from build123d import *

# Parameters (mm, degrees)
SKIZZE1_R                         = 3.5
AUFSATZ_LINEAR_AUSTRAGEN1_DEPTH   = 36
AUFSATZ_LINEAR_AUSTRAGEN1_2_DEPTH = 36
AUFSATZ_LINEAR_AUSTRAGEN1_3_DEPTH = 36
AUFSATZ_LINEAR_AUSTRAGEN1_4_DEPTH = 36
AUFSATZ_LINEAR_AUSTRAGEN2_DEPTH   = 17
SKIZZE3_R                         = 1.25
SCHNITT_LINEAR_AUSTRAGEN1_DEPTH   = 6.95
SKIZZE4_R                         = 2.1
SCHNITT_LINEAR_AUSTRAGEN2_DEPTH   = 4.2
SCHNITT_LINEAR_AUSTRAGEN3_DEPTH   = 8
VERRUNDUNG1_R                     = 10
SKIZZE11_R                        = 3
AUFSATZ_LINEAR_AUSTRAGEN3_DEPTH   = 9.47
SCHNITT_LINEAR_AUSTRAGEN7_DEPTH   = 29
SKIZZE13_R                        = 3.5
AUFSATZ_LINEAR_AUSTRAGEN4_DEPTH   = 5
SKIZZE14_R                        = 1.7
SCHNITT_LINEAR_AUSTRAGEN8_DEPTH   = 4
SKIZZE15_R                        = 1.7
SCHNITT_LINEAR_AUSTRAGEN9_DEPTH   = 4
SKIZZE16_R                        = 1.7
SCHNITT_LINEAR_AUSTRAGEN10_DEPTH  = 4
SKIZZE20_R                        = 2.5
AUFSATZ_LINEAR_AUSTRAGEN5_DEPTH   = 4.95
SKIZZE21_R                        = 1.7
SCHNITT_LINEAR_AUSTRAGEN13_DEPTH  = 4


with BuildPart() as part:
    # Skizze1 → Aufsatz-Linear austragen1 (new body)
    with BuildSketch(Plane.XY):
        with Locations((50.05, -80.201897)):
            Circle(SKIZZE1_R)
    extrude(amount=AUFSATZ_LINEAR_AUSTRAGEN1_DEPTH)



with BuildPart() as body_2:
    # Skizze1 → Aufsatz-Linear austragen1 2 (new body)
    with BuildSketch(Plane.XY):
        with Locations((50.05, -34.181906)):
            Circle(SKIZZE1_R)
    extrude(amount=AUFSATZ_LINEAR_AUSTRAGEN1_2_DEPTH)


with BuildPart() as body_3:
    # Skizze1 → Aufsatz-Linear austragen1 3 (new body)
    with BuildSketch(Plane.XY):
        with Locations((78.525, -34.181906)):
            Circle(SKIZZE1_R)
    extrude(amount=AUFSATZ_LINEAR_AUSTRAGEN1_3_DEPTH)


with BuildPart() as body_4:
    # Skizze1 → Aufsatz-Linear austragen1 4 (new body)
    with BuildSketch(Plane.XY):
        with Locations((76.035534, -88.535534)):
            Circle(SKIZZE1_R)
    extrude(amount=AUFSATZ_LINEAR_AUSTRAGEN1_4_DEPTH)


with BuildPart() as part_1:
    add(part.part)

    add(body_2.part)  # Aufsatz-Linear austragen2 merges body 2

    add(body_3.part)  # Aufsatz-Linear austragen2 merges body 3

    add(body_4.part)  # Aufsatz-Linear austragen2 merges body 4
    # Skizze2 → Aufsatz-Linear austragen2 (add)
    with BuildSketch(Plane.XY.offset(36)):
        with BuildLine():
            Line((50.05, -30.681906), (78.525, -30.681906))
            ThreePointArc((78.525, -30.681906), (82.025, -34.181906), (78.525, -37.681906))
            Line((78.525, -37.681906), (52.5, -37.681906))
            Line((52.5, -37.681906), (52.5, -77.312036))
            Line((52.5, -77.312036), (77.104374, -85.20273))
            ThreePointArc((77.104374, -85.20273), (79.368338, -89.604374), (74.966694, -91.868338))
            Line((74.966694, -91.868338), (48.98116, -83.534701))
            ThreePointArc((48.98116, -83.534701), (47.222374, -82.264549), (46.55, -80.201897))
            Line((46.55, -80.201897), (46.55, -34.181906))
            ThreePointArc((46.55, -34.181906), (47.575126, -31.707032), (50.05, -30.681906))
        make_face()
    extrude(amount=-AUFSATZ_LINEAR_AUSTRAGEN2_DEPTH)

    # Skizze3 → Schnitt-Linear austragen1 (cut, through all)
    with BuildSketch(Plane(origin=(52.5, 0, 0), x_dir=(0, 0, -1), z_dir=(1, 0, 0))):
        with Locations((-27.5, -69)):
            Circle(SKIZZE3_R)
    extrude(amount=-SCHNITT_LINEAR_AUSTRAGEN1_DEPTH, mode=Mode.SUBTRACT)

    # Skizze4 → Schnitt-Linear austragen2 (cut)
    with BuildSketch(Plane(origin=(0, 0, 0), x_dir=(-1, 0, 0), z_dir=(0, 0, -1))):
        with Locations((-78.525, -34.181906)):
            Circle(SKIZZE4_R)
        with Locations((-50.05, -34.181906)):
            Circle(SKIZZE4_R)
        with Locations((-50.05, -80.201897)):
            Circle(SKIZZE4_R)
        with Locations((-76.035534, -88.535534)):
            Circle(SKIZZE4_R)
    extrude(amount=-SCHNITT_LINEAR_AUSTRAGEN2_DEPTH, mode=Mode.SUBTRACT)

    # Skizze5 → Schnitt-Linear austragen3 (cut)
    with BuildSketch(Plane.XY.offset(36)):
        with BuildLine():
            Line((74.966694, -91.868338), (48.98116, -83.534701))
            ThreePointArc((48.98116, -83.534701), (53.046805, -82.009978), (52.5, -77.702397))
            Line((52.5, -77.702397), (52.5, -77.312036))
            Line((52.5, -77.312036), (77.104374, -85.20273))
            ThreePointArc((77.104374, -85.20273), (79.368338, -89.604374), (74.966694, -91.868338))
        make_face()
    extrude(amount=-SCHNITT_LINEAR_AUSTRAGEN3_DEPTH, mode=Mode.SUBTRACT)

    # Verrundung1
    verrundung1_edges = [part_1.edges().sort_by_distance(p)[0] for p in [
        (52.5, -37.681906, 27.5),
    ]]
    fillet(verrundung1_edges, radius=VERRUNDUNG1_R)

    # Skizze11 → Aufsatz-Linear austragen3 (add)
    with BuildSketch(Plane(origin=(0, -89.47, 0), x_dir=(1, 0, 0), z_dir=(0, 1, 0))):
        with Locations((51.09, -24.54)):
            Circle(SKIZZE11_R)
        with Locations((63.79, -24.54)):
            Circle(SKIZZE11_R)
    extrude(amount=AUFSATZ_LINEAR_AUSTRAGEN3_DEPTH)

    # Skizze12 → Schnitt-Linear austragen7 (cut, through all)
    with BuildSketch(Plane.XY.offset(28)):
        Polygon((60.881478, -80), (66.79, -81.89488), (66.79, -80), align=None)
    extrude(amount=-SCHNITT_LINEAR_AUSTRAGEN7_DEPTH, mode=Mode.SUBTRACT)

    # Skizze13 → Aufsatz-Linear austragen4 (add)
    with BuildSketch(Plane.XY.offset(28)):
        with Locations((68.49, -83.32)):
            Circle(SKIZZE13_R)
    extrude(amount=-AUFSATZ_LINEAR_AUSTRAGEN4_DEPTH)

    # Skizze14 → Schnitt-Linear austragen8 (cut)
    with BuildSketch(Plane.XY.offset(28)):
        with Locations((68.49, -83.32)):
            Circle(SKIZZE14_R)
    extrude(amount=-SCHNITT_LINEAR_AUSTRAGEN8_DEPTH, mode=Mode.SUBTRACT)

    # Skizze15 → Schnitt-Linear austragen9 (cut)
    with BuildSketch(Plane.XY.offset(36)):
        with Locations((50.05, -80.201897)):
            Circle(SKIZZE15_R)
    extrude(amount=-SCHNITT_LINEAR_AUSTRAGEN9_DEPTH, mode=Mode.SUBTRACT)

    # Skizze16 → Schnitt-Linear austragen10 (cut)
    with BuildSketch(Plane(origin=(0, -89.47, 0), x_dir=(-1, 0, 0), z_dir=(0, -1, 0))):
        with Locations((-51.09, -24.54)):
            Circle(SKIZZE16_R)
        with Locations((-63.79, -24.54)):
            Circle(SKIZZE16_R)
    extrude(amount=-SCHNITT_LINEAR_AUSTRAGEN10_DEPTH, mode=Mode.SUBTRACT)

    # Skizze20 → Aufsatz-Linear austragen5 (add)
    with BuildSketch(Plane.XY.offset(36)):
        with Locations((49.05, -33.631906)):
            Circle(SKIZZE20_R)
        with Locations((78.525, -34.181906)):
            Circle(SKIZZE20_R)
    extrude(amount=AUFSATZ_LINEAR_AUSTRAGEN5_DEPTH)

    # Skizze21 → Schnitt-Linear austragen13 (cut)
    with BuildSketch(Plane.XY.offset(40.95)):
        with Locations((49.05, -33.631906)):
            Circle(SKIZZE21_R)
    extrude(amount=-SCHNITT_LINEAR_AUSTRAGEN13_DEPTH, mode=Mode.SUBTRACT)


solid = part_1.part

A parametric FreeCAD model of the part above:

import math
import FreeCAD as App
import Part
import Sketcher

V = App.Vector
Q = App.Units.Quantity


def edges_at(feature, points):
    """Names of the edges that pass closest to the given points."""
    edges = feature.Shape.Edges
    near = lambda p: min(range(len(edges)), key=lambda i: edges[i].distToShape(Part.Vertex(*p))[0])
    return sorted({f"Edge{near(p) + 1}" for p in points})


def add_polygon(sketch, points):
    """Adds a closed chain of lines whose ends are joined by coincident constraints."""
    first, n = sketch.GeometryCount, len(points)
    for a, b in zip(points, points[1:] + points[:1]):
        sketch.addGeometry(Part.LineSegment(App.Vector(*a, 0), App.Vector(*b, 0)), False)
    for i in range(n):
        sketch.addConstraint(Sketcher.Constraint("Coincident", first + i, 2, first + (i + 1) % n, 1))

doc = App.newDocument("Part")
body = doc.addObject("PartDesign::Body", "Body")

# Sketch on XY plane
sketch1 = body.newObject("Sketcher::SketchObject", "Sketch")
sketch1.AttachmentSupport = (doc.getObject("XY_Plane"), [""])
sketch1.MapMode = "FlatFace"
sketch1.addGeometry(Part.Circle(V(50, -80.2, 0), V(0, 0, 1), 3.5), False)
sketch1.addConstraint([
    Sketcher.Constraint("Diameter", 0, Q("7 mm")),
    Sketcher.Constraint("DistanceX", -1, 1, 0, 3, Q("50.05 mm")),
    Sketcher.Constraint("DistanceY", 0, 3, -1, 1, Q("80.201897 mm")),
])
pad1 = body.newObject("PartDesign::Pad", "Pad")
pad1.Profile = sketch1
pad1.Length = 36
body2 = doc.addObject("PartDesign::Body", "Body001")

# Sketch on XY plane
sketch2 = body2.newObject("Sketcher::SketchObject", "Sketch001")
sketch2.AttachmentSupport = (doc.getObject("XY_Plane001"), [""])
sketch2.MapMode = "FlatFace"
sketch2.addGeometry(Part.Circle(V(50, -34.2, 0), V(0, 0, 1), 3.5), False)
sketch2.addConstraint([
    Sketcher.Constraint("Diameter", 0, Q("7 mm")),
    Sketcher.Constraint("DistanceX", -1, 1, 0, 3, Q("50.05 mm")),
    Sketcher.Constraint("DistanceY", 0, 3, -1, 1, Q("34.181906 mm")),
])
pad2 = body2.newObject("PartDesign::Pad", "Pad001")
pad2.Profile = sketch2
pad2.Length = 36
body3 = doc.addObject("PartDesign::Body", "Body002")

# Sketch on XY plane
sketch3 = body3.newObject("Sketcher::SketchObject", "Sketch002")
sketch3.AttachmentSupport = (doc.getObject("XY_Plane002"), [""])
sketch3.MapMode = "FlatFace"
sketch3.addGeometry(Part.Circle(V(78.5, -34.2, 0), V(0, 0, 1), 3.5), False)
sketch3.addConstraint([
    Sketcher.Constraint("Diameter", 0, Q("7 mm")),
    Sketcher.Constraint("DistanceX", -1, 1, 0, 3, Q("78.525 mm")),
    Sketcher.Constraint("DistanceY", 0, 3, -1, 1, Q("34.181906 mm")),
])
pad3 = body3.newObject("PartDesign::Pad", "Pad002")
pad3.Profile = sketch3
pad3.Length = 36
body4 = doc.addObject("PartDesign::Body", "Body003")

# Sketch on XY plane
sketch4 = body4.newObject("Sketcher::SketchObject", "Sketch003")
sketch4.AttachmentSupport = (doc.getObject("XY_Plane003"), [""])
sketch4.MapMode = "FlatFace"
sketch4.addGeometry(Part.Circle(V(76, -88.5, 0), V(0, 0, 1), 3.5), False)
sketch4.addConstraint([
    Sketcher.Constraint("Diameter", 0, Q("7 mm")),
    Sketcher.Constraint("DistanceX", -1, 1, 0, 3, Q("76.035534 mm")),
    Sketcher.Constraint("DistanceY", 0, 3, -1, 1, Q("88.535534 mm")),
])
pad4 = body4.newObject("PartDesign::Pad", "Pad003")
pad4.Profile = sketch4
pad4.Length = 36
body.AllowCompound = True
doc.recompute()

boolean = body.newObject("PartDesign::Boolean", "Boolean")
boolean.Type = "Fuse"
boolean.addObjects([body2])
doc.recompute()

boolean2 = body.newObject("PartDesign::Boolean", "Boolean001")
boolean2.Type = "Fuse"
boolean2.addObjects([body3])
doc.recompute()

boolean3 = body.newObject("PartDesign::Boolean", "Boolean002")
boolean3.Type = "Fuse"
boolean3.addObjects([body4])

# Sketch on XY plane
sketch5 = body.newObject("Sketcher::SketchObject", "Sketch004")
sketch5.AttachmentSupport = (doc.getObject("XY_Plane"), [""])
sketch5.MapMode = "FlatFace"
sketch5.AttachmentOffset = App.Placement(V(0, 0, 36), App.Rotation())
sketch5.addGeometry([
    Part.LineSegment(V(78.525, -30.681906, 0), V(50.05, -30.681906, 0)),  # 0
    Part.ArcOfCircle(Part.Circle(V(50.049999, -34.181905, 0), V(0, 0, 1), 3.499999), math.radians(89.999985), math.radians(180.000015)),  # 1
    Part.LineSegment(V(46.55, -34.181906, 0), V(46.55, -80.201897, 0)),  # 2
    Part.ArcOfCircle(Part.Circle(V(50.049999, -80.201898, 0), V(0, 0, 1), 3.499999), math.radians(179.999988), math.radians(252.218809)),  # 3
    Part.LineSegment(V(48.98116, -83.534701, 0), V(74.966694, -91.868338, 0)),  # 4
    Part.ArcOfCircle(Part.Circle(V(76.035534, -88.535534, 0), V(0, 0, 1), 3.5), math.radians(-107.781198), math.radians(72.218802)),  # 5
    Part.LineSegment(V(77.104374, -85.20273, 0), V(52.5, -77.312036, 0)),  # 6
    Part.LineSegment(V(52.5, -77.312036, 0), V(52.5, -37.681906, 0)),  # 7
    Part.LineSegment(V(52.5, -37.681906, 0), V(78.525, -37.681906, 0)),  # 8
    Part.ArcOfCircle(Part.Circle(V(78.525, -34.181906, 0), V(0, 0, 1), 3.5), math.radians(-90), math.radians(90)),  # 9
], False)
sketch5.addConstraint([
    Sketcher.Constraint("Coincident", 0, 2, 1, 1),
    Sketcher.Constraint("Coincident", 1, 2, 2, 1),
    Sketcher.Constraint("Coincident", 2, 2, 3, 1),
    Sketcher.Constraint("Coincident", 3, 2, 4, 1),
    Sketcher.Constraint("Coincident", 4, 2, 5, 1),
    Sketcher.Constraint("Coincident", 5, 2, 6, 1),
    Sketcher.Constraint("Coincident", 6, 2, 7, 1),
    Sketcher.Constraint("Coincident", 7, 2, 8, 1),
    Sketcher.Constraint("Coincident", 8, 2, 9, 1),
    Sketcher.Constraint("Coincident", 9, 2, 0, 1),
    Sketcher.Constraint("Horizontal", 0),
    Sketcher.Constraint("Vertical", 2),
    Sketcher.Constraint("Vertical", 7),
    Sketcher.Constraint("Horizontal", 8),
    Sketcher.Constraint("Radius", 1, Q("3.499999 mm")),
    Sketcher.Constraint("Radius", 3, Q("3.499999 mm")),
    Sketcher.Constraint("Radius", 5, Q("3.5 mm")),
    Sketcher.Constraint("Radius", 9, Q("3.5 mm")),
    Sketcher.Constraint("DistanceX", -1, 1, 6, 2, Q("52.5 mm")),
    Sketcher.Constraint("DistanceX", 1, 2, 0, 2, Q("3.5 mm")),
    Sketcher.Constraint("DistanceY", 1, 2, 0, 2, Q("3.5 mm")),
    Sketcher.Constraint("DistanceX", 0, 2, 0, 1, Q("28.475 mm")),
    Sketcher.Constraint("DistanceX", 8, 1, 8, 2, Q("26.025 mm")),
    Sketcher.Constraint("DistanceX", -1, 1, 1, 3, Q("50.049999 mm")),
    Sketcher.Constraint("DistanceX", -1, 1, 9, 3, Q("78.525 mm")),
    Sketcher.Constraint("DistanceY", 2, 2, 2, 1, Q("46.019991 mm")),
    Sketcher.Constraint("DistanceY", 7, 1, 7, 2, Q("39.63013 mm")),
    Sketcher.Constraint("DistanceY", 3, 2, -1, 1, Q("83.534701 mm")),
    Sketcher.Constraint("DistanceX", -1, 1, 3, 2, Q("48.98116 mm")),
    Sketcher.Constraint("DistanceY", 5, 2, -1, 1, Q("85.20273 mm")),
    Sketcher.Constraint("DistanceY", 5, 3, 1, 3, Q("54.353629 mm")),
    Sketcher.Constraint("DistanceY", 3, 3, 9, 3, Q("46.019992 mm")),
    Sketcher.Constraint("DistanceX", 4, 2, 5, 3, Q("1.06884 mm")),
    Sketcher.Constraint("Distance", 4, Q("27.289146 mm")),
])
pad5 = body.newObject("PartDesign::Pad", "Pad004")
pad5.Profile = sketch5
pad5.Length = 17
pad5.Reversed = True

# Sketch on YZ plane
sketch6 = body.newObject("Sketcher::SketchObject", "Sketch005")
sketch6.AttachmentSupport = (doc.getObject("YZ_Plane"), [""])
sketch6.MapMode = "FlatFace"
sketch6.AttachmentOffset = App.Placement(V(0, 0, 52.5), App.Rotation())
sketch6.addGeometry(Part.Circle(V(-69, 27.5, 0), V(0, 0, 1), 1.2), False)
sketch6.addConstraint([
    Sketcher.Constraint("Diameter", 0, Q("2.5 mm")),
    Sketcher.Constraint("DistanceX", 0, 3, -1, 1, Q("69 mm")),
    Sketcher.Constraint("DistanceY", -1, 1, 0, 3, Q("27.5 mm")),
])
pocket1 = body.newObject("PartDesign::Pocket", "Pocket")
pocket1.Profile = sketch6
pocket1.Type = "ThroughAll"

# Sketch on XY plane
sketch7 = body.newObject("Sketcher::SketchObject", "Sketch006")
sketch7.AttachmentSupport = (doc.getObject("XY_Plane"), [""])
sketch7.MapMode = "FlatFace"
sketch7.addGeometry([
    Part.Circle(V(78.5, -34.2, 0), V(0, 0, 1), 2.1),
    Part.Circle(V(50, -34.2, 0), V(0, 0, 1), 2.1),
    Part.Circle(V(50, -80.2, 0), V(0, 0, 1), 2.1),
    Part.Circle(V(76, -88.5, 0), V(0, 0, 1), 2.1),
], False)
sketch7.addConstraint([
    Sketcher.Constraint("Equal", 0, 1),
    Sketcher.Constraint("Equal", 1, 2),
    Sketcher.Constraint("Equal", 2, 3),
    Sketcher.Constraint("Horizontal", 0, 3, 1, 3),
    Sketcher.Constraint("Vertical", 1, 3, 2, 3),
    Sketcher.Constraint("Diameter", 0, Q("4.2 mm")),
    Sketcher.Constraint("DistanceX", -1, 1, 1, 3, Q("50.05 mm")),
    Sketcher.Constraint("DistanceX", -1, 1, 0, 3, Q("78.525 mm")),
    Sketcher.Constraint("DistanceY", 2, 3, 1, 3, Q("46.019991 mm")),
    Sketcher.Constraint("DistanceY", 0, 3, -1, 1, Q("34.181906 mm")),
    Sketcher.Constraint("DistanceX", -1, 1, 3, 3, Q("76.035534 mm")),
    Sketcher.Constraint("DistanceY", 3, 3, -1, 1, Q("88.535534 mm")),
])
pocket2 = body.newObject("PartDesign::Pocket", "Pocket001")
pocket2.Profile = sketch7
pocket2.Length = 4.2
pocket2.Reversed = True

# Sketch on XY plane
sketch8 = body.newObject("Sketcher::SketchObject", "Sketch007")
sketch8.AttachmentSupport = (doc.getObject("XY_Plane"), [""])
sketch8.MapMode = "FlatFace"
sketch8.AttachmentOffset = App.Placement(V(0, 0, 36), App.Rotation())
sketch8.addGeometry([
    Part.LineSegment(V(48.98116, -83.534701, 0), V(74.966694, -91.868338, 0)),  # 0
    Part.ArcOfCircle(Part.Circle(V(76.035534, -88.535534, 0), V(0, 0, 1), 3.5), math.radians(-107.781198), math.radians(72.218802)),  # 1
    Part.LineSegment(V(77.104374, -85.20273, 0), V(52.5, -77.312036, 0)),  # 2
    Part.LineSegment(V(52.5, -77.312036, 0), V(52.5, -77.702397, 0)),  # 3
    Part.ArcOfCircle(Part.Circle(V(50.049999, -80.201897, 0), V(0, 0, 1), 3.5), math.radians(-107.781187), math.radians(45.572986)),  # 4
], False)
sketch8.addConstraint([
    Sketcher.Constraint("Coincident", 0, 2, 1, 1),
    Sketcher.Constraint("Coincident", 1, 2, 2, 1),
    Sketcher.Constraint("Coincident", 2, 2, 3, 1),
    Sketcher.Constraint("Coincident", 3, 2, 4, 2),
    Sketcher.Constraint("Coincident", 4, 1, 0, 1),
    Sketcher.Constraint("Vertical", 3),
    Sketcher.Constraint("Radius", 1, Q("3.5 mm")),
    Sketcher.Constraint("Radius", 4, Q("3.5 mm")),
    Sketcher.Constraint("DistanceX", -1, 1, 2, 2, Q("52.5 mm")),
    Sketcher.Constraint("DistanceX", -1, 1, 4, 3, Q("50.049999 mm")),
    Sketcher.Constraint("DistanceY", 3, 2, 3, 1, Q("0.390361 mm")),
    Sketcher.Constraint("DistanceY", 4, 1, -1, 1, Q("83.534701 mm")),
    Sketcher.Constraint("DistanceY", 0, 2, 2, 2, Q("14.556302 mm")),
    Sketcher.Constraint("DistanceY", 1, 2, -1, 1, Q("85.20273 mm")),
    Sketcher.Constraint("DistanceX", -1, 1, 4, 1, Q("48.98116 mm")),
    Sketcher.Constraint("DistanceX", 0, 2, 1, 3, Q("1.06884 mm")),
    Sketcher.Constraint("Distance", 0, Q("27.289146 mm")),
])
pocket3 = body.newObject("PartDesign::Pocket", "Pocket002")
pocket3.Profile = sketch8
pocket3.Length = 8
doc.recompute()

fillet = body.newObject("PartDesign::Fillet", "Fillet")
fillet.Base = (pocket3, edges_at(pocket3, [(52.5, -37.682, 27.5)]))
fillet.Radius = 10

# Sketch on XZ plane
sketch9 = body.newObject("Sketcher::SketchObject", "Sketch008")
sketch9.AttachmentSupport = (doc.getObject("XZ_Plane"), [""])
sketch9.MapMode = "FlatFace"
sketch9.AttachmentOffset = App.Placement(V(0, 0, 89.47), App.Rotation())
sketch9.addGeometry([
    Part.Circle(V(51.1, 24.5, 0), V(0, 0, 1), 3),
    Part.Circle(V(63.8, 24.5, 0), V(0, 0, 1), 3),
], False)
sketch9.addConstraint([
    Sketcher.Constraint("Equal", 0, 1),
    Sketcher.Constraint("Horizontal", 0, 3, 1, 3),
    Sketcher.Constraint("Diameter", 0, Q("6 mm")),
    Sketcher.Constraint("DistanceX", 0, 3, 1, 3, Q("12.7 mm")),
    Sketcher.Constraint("DistanceX", -1, 1, 0, 3, Q("51.09 mm")),
    Sketcher.Constraint("DistanceY", -1, 1, 0, 3, Q("24.54 mm")),
])
pad6 = body.newObject("PartDesign::Pad", "Pad005")
pad6.Profile = sketch9
pad6.Length = 9.47
pad6.Reversed = True

# Sketch on XY plane
sketch10 = body.newObject("Sketcher::SketchObject", "Sketch009")
sketch10.AttachmentSupport = (doc.getObject("XY_Plane"), [""])
sketch10.MapMode = "FlatFace"
sketch10.AttachmentOffset = App.Placement(V(0, 0, 28), App.Rotation())
add_polygon(sketch10, [(60.9, -80), (66.8, -81.9), (66.8, -80)])  # lines 0-2
sketch10.addConstraint([
    Sketcher.Constraint("Vertical", 1),
    Sketcher.Constraint("Horizontal", 2),
    Sketcher.Constraint("DistanceY", 1, 2, -1, 1, Q("80 mm")),
    Sketcher.Constraint("DistanceX", -1, 1, 0, 2, Q("66.79 mm")),
    Sketcher.Constraint("DistanceY", 1, 1, 1, 2, Q("1.89488 mm")),
    Sketcher.Constraint("DistanceX", 2, 2, 2, 1, Q("5.908522 mm")),
])
pocket4 = body.newObject("PartDesign::Pocket", "Pocket003")
pocket4.Profile = sketch10
pocket4.Type = "ThroughAll"

# Sketch on XY plane
sketch11 = body.newObject("Sketcher::SketchObject", "Sketch010")
sketch11.AttachmentSupport = (doc.getObject("XY_Plane"), [""])
sketch11.MapMode = "FlatFace"
sketch11.AttachmentOffset = App.Placement(V(0, 0, 28), App.Rotation())
sketch11.addGeometry(Part.Circle(V(68.5, -83.3, 0), V(0, 0, 1), 3.5), False)
sketch11.addConstraint([
    Sketcher.Constraint("Diameter", 0, Q("7 mm")),
    Sketcher.Constraint("DistanceX", -1, 1, 0, 3, Q("68.49 mm")),
    Sketcher.Constraint("DistanceY", 0, 3, -1, 1, Q("83.32 mm")),
])
pad7 = body.newObject("PartDesign::Pad", "Pad006")
pad7.Profile = sketch11
pad7.Length = 5
pad7.Reversed = True

# Sketch on XY plane
sketch12 = body.newObject("Sketcher::SketchObject", "Sketch011")
sketch12.AttachmentSupport = (doc.getObject("XY_Plane"), [""])
sketch12.MapMode = "FlatFace"
sketch12.AttachmentOffset = App.Placement(V(0, 0, 28), App.Rotation())
sketch12.addGeometry(Part.Circle(V(68.5, -83.3, 0), V(0, 0, 1), 1.7), False)
sketch12.addConstraint([
    Sketcher.Constraint("Diameter", 0, Q("3.4 mm")),
    Sketcher.Constraint("DistanceX", -1, 1, 0, 3, Q("68.49 mm")),
    Sketcher.Constraint("DistanceY", 0, 3, -1, 1, Q("83.32 mm")),
])
pocket5 = body.newObject("PartDesign::Pocket", "Pocket004")
pocket5.Profile = sketch12
pocket5.Length = 4

# Sketch on XY plane
sketch13 = body.newObject("Sketcher::SketchObject", "Sketch012")
sketch13.AttachmentSupport = (doc.getObject("XY_Plane"), [""])
sketch13.MapMode = "FlatFace"
sketch13.AttachmentOffset = App.Placement(V(0, 0, 36), App.Rotation())
sketch13.addGeometry(Part.Circle(V(50, -80.2, 0), V(0, 0, 1), 1.7), False)
sketch13.addConstraint([
    Sketcher.Constraint("Diameter", 0, Q("3.4 mm")),
    Sketcher.Constraint("DistanceX", -1, 1, 0, 3, Q("50.05 mm")),
    Sketcher.Constraint("DistanceY", 0, 3, -1, 1, Q("80.201897 mm")),
])
pocket6 = body.newObject("PartDesign::Pocket", "Pocket005")
pocket6.Profile = sketch13
pocket6.Length = 4

# Sketch on XZ plane
sketch14 = body.newObject("Sketcher::SketchObject", "Sketch013")
sketch14.AttachmentSupport = (doc.getObject("XZ_Plane"), [""])
sketch14.MapMode = "FlatFace"
sketch14.AttachmentOffset = App.Placement(V(0, 0, 89.47), App.Rotation())
sketch14.addGeometry([
    Part.Circle(V(51.1, 24.5, 0), V(0, 0, 1), 1.7),
    Part.Circle(V(63.8, 24.5, 0), V(0, 0, 1), 1.7),
], False)
sketch14.addConstraint([
    Sketcher.Constraint("Equal", 0, 1),
    Sketcher.Constraint("Horizontal", 0, 3, 1, 3),
    Sketcher.Constraint("Diameter", 0, Q("3.4 mm")),
    Sketcher.Constraint("DistanceX", 0, 3, 1, 3, Q("12.7 mm")),
    Sketcher.Constraint("DistanceX", -1, 1, 0, 3, Q("51.09 mm")),
    Sketcher.Constraint("DistanceY", -1, 1, 0, 3, Q("24.54 mm")),
])
pocket7 = body.newObject("PartDesign::Pocket", "Pocket006")
pocket7.Profile = sketch14
pocket7.Length = 4

# Sketch on XY plane
sketch15 = body.newObject("Sketcher::SketchObject", "Sketch014")
sketch15.AttachmentSupport = (doc.getObject("XY_Plane"), [""])
sketch15.MapMode = "FlatFace"
sketch15.AttachmentOffset = App.Placement(V(0, 0, 36), App.Rotation())
sketch15.addGeometry([
    Part.Circle(V(49, -33.6, 0), V(0, 0, 1), 2.5),
    Part.Circle(V(78.5, -34.2, 0), V(0, 0, 1), 2.5),
], False)
sketch15.addConstraint([
    Sketcher.Constraint("Equal", 0, 1),
    Sketcher.Constraint("Diameter", 0, Q("5 mm")),
    Sketcher.Constraint("DistanceX", -1, 1, 0, 3, Q("49.05 mm")),
    Sketcher.Constraint("DistanceY", 1, 3, 0, 3, Q("0.55 mm")),
    Sketcher.Constraint("DistanceX", -1, 1, 1, 3, Q("78.525 mm")),
    Sketcher.Constraint("DistanceY", 0, 3, -1, 1, Q("33.631906 mm")),
])
pad8 = body.newObject("PartDesign::Pad", "Pad007")
pad8.Profile = sketch15
pad8.Length = 4.95

# Sketch on XY plane
sketch16 = body.newObject("Sketcher::SketchObject", "Sketch015")
sketch16.AttachmentSupport = (doc.getObject("XY_Plane"), [""])
sketch16.MapMode = "FlatFace"
sketch16.AttachmentOffset = App.Placement(V(0, 0, 40.95), App.Rotation())
sketch16.addGeometry(Part.Circle(V(49, -33.6, 0), V(0, 0, 1), 1.7), False)
sketch16.addConstraint([
    Sketcher.Constraint("Diameter", 0, Q("3.4 mm")),
    Sketcher.Constraint("DistanceX", -1, 1, 0, 3, Q("49.05 mm")),
    Sketcher.Constraint("DistanceY", 0, 3, -1, 1, Q("33.631906 mm")),
])
pocket8 = body.newObject("PartDesign::Pocket", "Pocket007")
pocket8.Profile = sketch16
pocket8.Length = 4

doc.recompute()
